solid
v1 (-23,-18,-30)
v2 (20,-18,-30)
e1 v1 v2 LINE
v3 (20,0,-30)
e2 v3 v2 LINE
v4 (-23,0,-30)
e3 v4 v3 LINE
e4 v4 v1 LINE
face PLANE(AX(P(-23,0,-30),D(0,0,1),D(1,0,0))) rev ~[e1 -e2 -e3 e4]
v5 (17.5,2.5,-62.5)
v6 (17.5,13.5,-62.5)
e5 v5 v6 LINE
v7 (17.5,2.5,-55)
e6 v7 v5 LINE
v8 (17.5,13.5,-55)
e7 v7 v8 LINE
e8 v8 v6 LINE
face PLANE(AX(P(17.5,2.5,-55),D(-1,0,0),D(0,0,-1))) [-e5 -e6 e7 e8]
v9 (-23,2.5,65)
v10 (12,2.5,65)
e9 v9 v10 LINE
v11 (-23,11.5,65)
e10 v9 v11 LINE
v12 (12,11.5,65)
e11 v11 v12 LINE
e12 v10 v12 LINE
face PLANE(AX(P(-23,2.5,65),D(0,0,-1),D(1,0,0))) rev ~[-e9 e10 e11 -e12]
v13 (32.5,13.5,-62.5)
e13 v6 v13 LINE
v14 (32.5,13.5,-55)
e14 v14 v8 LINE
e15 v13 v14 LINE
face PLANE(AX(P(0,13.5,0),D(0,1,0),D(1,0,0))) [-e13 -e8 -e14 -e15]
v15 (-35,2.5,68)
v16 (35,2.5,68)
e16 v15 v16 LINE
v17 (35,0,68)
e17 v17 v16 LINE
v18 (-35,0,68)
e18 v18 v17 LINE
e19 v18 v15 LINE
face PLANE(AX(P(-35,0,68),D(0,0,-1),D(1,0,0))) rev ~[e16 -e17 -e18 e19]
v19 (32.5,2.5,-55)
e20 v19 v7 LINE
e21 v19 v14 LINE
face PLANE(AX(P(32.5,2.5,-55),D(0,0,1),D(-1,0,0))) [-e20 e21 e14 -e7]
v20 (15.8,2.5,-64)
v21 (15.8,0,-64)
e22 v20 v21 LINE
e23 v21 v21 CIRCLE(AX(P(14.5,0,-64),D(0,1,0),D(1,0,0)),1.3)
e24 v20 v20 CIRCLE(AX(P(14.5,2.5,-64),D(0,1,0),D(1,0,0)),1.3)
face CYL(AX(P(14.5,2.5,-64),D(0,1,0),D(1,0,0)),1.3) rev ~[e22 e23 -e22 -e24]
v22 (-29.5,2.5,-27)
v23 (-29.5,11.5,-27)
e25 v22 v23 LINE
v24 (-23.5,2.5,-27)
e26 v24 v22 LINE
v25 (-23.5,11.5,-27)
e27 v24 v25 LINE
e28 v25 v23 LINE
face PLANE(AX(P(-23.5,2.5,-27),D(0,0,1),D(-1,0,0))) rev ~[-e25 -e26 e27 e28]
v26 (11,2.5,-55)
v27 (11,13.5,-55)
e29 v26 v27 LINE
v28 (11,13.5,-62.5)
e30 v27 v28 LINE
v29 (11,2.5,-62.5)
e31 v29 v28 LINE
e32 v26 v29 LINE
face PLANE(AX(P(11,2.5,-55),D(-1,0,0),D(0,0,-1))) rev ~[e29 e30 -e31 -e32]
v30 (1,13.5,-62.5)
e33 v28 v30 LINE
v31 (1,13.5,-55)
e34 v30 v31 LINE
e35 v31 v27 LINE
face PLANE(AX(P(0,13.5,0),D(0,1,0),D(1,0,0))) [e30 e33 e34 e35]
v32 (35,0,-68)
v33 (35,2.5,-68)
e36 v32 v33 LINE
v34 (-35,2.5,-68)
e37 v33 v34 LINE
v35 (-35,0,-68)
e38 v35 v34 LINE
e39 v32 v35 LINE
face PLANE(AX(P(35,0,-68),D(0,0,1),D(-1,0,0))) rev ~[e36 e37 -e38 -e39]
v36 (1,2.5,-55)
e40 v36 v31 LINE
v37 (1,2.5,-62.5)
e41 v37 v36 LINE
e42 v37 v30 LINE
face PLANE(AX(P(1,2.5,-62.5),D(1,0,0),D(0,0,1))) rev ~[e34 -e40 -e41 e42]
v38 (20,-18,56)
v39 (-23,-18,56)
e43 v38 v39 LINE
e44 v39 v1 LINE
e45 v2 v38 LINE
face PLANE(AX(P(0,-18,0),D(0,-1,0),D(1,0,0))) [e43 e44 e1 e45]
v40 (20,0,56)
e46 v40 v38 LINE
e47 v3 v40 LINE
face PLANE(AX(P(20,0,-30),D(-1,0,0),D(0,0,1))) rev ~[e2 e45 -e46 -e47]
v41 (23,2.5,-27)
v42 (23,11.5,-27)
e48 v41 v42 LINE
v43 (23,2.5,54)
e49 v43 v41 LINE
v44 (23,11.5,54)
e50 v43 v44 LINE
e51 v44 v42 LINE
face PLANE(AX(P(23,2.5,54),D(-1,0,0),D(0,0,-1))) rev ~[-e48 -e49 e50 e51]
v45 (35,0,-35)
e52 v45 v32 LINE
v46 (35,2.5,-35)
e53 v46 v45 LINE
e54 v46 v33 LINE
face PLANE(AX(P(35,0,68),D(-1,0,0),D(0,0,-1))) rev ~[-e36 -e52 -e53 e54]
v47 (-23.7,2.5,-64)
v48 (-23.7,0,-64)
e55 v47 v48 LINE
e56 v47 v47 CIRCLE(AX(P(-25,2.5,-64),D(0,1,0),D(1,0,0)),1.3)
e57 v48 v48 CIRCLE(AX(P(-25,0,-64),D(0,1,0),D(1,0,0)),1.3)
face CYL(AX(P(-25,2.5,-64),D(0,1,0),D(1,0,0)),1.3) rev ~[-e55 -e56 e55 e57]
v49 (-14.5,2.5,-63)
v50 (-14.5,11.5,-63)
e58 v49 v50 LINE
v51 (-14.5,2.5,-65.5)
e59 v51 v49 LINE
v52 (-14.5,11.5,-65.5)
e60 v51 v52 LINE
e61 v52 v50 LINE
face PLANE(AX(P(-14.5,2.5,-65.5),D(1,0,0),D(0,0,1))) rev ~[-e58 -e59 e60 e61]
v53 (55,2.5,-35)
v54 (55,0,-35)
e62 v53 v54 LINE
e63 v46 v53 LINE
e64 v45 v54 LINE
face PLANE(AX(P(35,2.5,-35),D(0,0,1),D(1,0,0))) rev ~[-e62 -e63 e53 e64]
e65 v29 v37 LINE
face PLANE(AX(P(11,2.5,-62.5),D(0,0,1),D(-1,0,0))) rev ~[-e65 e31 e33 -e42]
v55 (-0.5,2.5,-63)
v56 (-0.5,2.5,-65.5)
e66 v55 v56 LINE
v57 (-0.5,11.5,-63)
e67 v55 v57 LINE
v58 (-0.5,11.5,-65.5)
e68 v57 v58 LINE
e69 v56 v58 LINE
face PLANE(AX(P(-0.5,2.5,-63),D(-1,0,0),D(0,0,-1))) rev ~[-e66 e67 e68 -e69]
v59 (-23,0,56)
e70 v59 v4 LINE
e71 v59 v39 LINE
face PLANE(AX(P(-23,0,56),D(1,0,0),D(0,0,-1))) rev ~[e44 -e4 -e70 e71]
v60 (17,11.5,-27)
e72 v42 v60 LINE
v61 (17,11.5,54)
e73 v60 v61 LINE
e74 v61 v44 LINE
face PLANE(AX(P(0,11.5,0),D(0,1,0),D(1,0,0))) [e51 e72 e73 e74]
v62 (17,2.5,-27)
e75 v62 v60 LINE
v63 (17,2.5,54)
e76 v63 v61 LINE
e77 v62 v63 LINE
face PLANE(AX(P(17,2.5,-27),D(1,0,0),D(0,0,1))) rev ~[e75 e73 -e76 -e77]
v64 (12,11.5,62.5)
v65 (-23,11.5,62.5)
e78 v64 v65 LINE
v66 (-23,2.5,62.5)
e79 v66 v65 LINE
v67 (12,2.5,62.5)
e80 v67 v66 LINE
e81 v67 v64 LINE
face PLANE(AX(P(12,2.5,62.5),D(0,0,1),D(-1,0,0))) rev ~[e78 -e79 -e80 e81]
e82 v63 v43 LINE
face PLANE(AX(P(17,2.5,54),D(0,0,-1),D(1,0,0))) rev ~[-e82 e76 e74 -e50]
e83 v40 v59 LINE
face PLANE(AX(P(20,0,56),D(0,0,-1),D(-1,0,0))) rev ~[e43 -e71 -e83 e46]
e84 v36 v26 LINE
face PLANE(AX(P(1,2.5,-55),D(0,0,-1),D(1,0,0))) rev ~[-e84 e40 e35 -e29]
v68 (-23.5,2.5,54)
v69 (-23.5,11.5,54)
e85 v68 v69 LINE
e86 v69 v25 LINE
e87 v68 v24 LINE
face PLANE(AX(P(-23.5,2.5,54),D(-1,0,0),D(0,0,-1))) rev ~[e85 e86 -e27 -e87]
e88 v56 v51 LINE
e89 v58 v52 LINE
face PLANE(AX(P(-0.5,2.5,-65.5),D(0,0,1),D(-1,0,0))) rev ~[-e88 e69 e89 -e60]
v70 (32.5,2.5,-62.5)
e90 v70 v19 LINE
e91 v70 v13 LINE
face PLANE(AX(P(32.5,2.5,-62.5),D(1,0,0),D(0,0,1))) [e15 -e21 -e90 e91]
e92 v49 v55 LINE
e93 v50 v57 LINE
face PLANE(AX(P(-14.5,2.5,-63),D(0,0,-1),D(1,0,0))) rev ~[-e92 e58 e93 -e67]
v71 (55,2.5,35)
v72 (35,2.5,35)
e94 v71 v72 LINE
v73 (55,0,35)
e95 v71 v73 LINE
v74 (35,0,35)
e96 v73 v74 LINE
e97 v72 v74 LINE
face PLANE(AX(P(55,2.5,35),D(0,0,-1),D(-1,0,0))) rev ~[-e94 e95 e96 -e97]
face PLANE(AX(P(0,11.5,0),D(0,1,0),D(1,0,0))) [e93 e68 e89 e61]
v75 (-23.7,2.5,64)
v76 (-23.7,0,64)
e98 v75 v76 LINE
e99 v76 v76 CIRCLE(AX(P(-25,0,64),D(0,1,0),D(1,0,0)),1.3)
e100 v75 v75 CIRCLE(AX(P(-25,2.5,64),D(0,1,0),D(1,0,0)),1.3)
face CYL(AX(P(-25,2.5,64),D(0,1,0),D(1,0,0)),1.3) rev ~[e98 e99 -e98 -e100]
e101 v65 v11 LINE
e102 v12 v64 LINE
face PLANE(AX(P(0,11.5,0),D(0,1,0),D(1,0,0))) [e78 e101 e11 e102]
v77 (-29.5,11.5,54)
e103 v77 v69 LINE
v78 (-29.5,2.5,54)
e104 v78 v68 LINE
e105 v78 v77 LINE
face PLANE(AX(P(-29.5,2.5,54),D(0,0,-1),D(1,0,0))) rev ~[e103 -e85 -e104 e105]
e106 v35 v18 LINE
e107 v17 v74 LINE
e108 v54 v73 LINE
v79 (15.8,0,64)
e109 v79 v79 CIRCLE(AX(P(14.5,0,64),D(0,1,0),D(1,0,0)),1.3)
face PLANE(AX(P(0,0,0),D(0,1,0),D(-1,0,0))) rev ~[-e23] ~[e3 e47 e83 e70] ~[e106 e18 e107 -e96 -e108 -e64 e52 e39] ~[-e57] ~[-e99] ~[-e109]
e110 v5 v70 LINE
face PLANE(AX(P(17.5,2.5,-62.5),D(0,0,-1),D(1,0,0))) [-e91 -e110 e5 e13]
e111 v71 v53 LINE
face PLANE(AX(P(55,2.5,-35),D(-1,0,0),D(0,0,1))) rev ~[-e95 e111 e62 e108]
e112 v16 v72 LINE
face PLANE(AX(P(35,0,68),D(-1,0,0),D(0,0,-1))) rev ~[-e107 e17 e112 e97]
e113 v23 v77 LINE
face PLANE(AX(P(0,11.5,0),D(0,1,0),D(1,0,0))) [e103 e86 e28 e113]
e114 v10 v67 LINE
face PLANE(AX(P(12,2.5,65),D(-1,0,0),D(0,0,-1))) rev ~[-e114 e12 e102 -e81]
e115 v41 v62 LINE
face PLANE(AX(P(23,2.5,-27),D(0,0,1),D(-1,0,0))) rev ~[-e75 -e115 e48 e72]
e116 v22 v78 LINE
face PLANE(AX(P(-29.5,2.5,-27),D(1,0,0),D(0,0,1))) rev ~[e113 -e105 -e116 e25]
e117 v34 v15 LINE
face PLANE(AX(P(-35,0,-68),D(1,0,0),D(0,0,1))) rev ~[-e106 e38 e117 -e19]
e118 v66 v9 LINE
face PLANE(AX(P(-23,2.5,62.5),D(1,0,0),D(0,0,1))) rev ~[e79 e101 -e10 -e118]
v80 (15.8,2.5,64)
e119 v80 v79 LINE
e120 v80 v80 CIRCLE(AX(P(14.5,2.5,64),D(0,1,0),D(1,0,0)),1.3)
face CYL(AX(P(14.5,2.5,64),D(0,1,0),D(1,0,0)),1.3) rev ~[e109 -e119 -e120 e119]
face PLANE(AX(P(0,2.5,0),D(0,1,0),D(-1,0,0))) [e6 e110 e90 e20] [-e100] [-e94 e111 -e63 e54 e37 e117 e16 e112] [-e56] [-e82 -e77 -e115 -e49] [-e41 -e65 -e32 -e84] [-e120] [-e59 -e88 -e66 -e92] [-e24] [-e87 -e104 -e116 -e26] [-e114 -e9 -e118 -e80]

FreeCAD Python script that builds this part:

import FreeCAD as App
import Part
import Sketcher
Q = App.Units.Quantity

doc = App.newDocument("Part")
body = doc.addObject("PartDesign::Body", "Body")

# Sketch on XZ plane
sketch1 = body.newObject("Sketcher::SketchObject", "Sketch")
sketch1.AttachmentSupport = (doc.getObject("XZ_Plane"), [""])
sketch1.MapMode = "FlatFace"
sketch1.addGeometry([
    Part.LineSegment(App.Vector(35, 68, 0), App.Vector(35, -68, 0)),
    Part.LineSegment(App.Vector(35, -68, 0), App.Vector(-35, -68, 0)),
    Part.LineSegment(App.Vector(-35, -68, 0), App.Vector(-35, 68, 0)),
    Part.LineSegment(App.Vector(-35, 68, 0), App.Vector(35, 68, 0)),
], False)
sketch1.addConstraint([
    Sketcher.Constraint("Coincident", 0, 2, 1, 1),
    Sketcher.Constraint("Coincident", 1, 2, 2, 1),
    Sketcher.Constraint("Coincident", 2, 2, 3, 1),
    Sketcher.Constraint("Coincident", 3, 2, 0, 1),
    Sketcher.Constraint("Vertical", 0),
    Sketcher.Constraint("Horizontal", 1),
    Sketcher.Constraint("Vertical", 2),
    Sketcher.Constraint("Horizontal", 3),
    Sketcher.Constraint("Symmetric", 0, 2, 2, 2, -1, 1),
    Sketcher.Constraint("DistanceX", 1, 2, 1, 1, Q("70 mm")),
    Sketcher.Constraint("DistanceY", 0, 2, 0, 1, Q("136 mm")),
])
pad1 = body.newObject("PartDesign::Pad", "Pad")
pad1.Profile = sketch1
pad1.Length = 2.5
pad1.Reversed = True

# Sketch on XZ plane
sketch2 = body.newObject("Sketcher::SketchObject", "Sketch001")
sketch2.AttachmentSupport = (doc.getObject("XZ_Plane"), [""])
sketch2.MapMode = "FlatFace"
sketch2.AttachmentOffset = App.Placement(App.Vector(0, 0, -2.5), App.Rotation())
sketch2.addGeometry([
    Part.LineSegment(App.Vector(35, -35, 0), App.Vector(35, 35, 0)),
    Part.LineSegment(App.Vector(35, 35, 0), App.Vector(55, 35, 0)),
    Part.LineSegment(App.Vector(55, 35, 0), App.Vector(55, -35, 0)),
    Part.LineSegment(App.Vector(55, -35, 0), App.Vector(35, -35, 0)),
], False)
sketch2.addConstraint([
    Sketcher.Constraint("Coincident", 0, 2, 1, 1),
    Sketcher.Constraint("Coincident", 1, 2, 2, 1),
    Sketcher.Constraint("Coincident", 2, 2, 3, 1),
    Sketcher.Constraint("Coincident", 3, 2, 0, 1),
    Sketcher.Constraint("Vertical", 0),
    Sketcher.Constraint("Horizontal", 1),
    Sketcher.Constraint("Vertical", 2),
    Sketcher.Constraint("Horizontal", 3),
    Sketcher.Constraint("DistanceX", 1, 1, 1, 2, Q("20 mm")),
    Sketcher.Constraint("DistanceY", 0, 1, 0, 2, Q("70 mm")),
    Sketcher.Constraint("DistanceX", -1, 1, 0, 2, Q("35 mm")),
    Sketcher.Constraint("DistanceY", -1, 1, 0, 2, Q("35 mm")),
])
pad2 = body.newObject("PartDesign::Pad", "Pad001")
pad2.Profile = sketch2
pad2.Length = 2.5

# Sketch on XZ plane
sketch3 = body.newObject("Sketcher::SketchObject", "Sketch002")
sketch3.AttachmentSupport = (doc.getObject("XZ_Plane"), [""])
sketch3.MapMode = "FlatFace"
sketch3.AttachmentOffset = App.Placement(App.Vector(0, 0, -2.5), App.Rotation())
sketch3.addGeometry([
    Part.Circle(App.Vector(-25, -64, 0), App.Vector(0, 0, 1), 1.3),
    Part.Circle(App.Vector(14.5, -64, 0), App.Vector(0, 0, 1), 1.3),
    Part.Circle(App.Vector(-25, 64, 0), App.Vector(0, 0, 1), 1.3),
    Part.Circle(App.Vector(14.5, 64, 0), App.Vector(0, 0, 1), 1.3),
], False)
sketch3.addConstraint([
    Sketcher.Constraint("Equal", 0, 1),
    Sketcher.Constraint("Equal", 1, 2),
    Sketcher.Constraint("Equal", 2, 3),
    Sketcher.Constraint("Symmetric", 0, 3, 2, 3, -1),
    Sketcher.Constraint("Symmetric", 1, 3, 3, 3, -1),
    Sketcher.Constraint("Horizontal", 0, 3, 1, 3),
    Sketcher.Constraint("Diameter", 0, Q("2.6 mm")),
    Sketcher.Constraint("DistanceY", 0, 3, 2, 3, Q("128 mm")),
    Sketcher.Constraint("DistanceX", 0, 3, 1, 3, Q("39.5 mm")),
    Sketcher.Constraint("DistanceX", 0, 3, -1, 1, Q("25 mm")),
])
pocket1 = body.newObject("PartDesign::Pocket", "Pocket")
pocket1.Profile = sketch3
pocket1.Type = "UpToFirst"
pocket1.Reversed = True

# Sketch on XZ plane
sketch4 = body.newObject("Sketcher::SketchObject", "Sketch003")
sketch4.AttachmentSupport = (doc.getObject("XZ_Plane"), [""])
sketch4.MapMode = "FlatFace"
sketch4.AttachmentOffset = App.Placement(App.Vector(0, 0, -2.5), App.Rotation())
sketch4.addGeometry([
    Part.LineSegment(App.Vector(-23, 62.5, 0), App.Vector(-23, 65, 0)),
    Part.LineSegment(App.Vector(-23, 65, 0), App.Vector(12, 65, 0)),
    Part.LineSegment(App.Vector(12, 65, 0), App.Vector(12, 62.5, 0)),
    Part.LineSegment(App.Vector(12, 62.5, 0), App.Vector(-23, 62.5, 0)),
], False)
sketch4.addConstraint([
    Sketcher.Constraint("Coincident", 0, 2, 1, 1),
    Sketcher.Constraint("Coincident", 1, 2, 2, 1),
    Sketcher.Constraint("Coincident", 2, 2, 3, 1),
    Sketcher.Constraint("Coincident", 3, 2, 0, 1),
    Sketcher.Constraint("Vertical", 0),
    Sketcher.Constraint("Horizontal", 1),
    Sketcher.Constraint("Vertical", 2),
    Sketcher.Constraint("Horizontal", 3),
    Sketcher.Constraint("DistanceX", 1, 1, 1, 2, Q("35 mm")),
    Sketcher.Constraint("DistanceY", 0, 1, 0, 2, Q("2.5 mm")),
    Sketcher.Constraint("DistanceX", -1, 1, 1, 2, Q("12 mm")),
    Sketcher.Constraint("DistanceY", -1, 1, 0, 2, Q("65 mm")),
])
pad3 = body.newObject("PartDesign::Pad", "Pad002")
pad3.Profile = sketch4
pad3.Length = 9
pad3.Reversed = True

# Sketch on XZ plane
sketch5 = body.newObject("Sketcher::SketchObject", "Sketch004")
sketch5.AttachmentSupport = (doc.getObject("XZ_Plane"), [""])
sketch5.MapMode = "FlatFace"
sketch5.AttachmentOffset = App.Placement(App.Vector(0, 0, -2.5), App.Rotation())
sketch5.addGeometry([
    Part.LineSegment(App.Vector(-30, -27, 0), App.Vector(-30, 54, 0)),  # 0
    Part.LineSegment(App.Vector(-30, 54, 0), App.Vector(-24, 54, 0)),  # 1
    Part.LineSegment(App.Vector(-24, 54, 0), App.Vector(-24, -27, 0)),  # 2
    Part.LineSegment(App.Vector(-24, -27, 0), App.Vector(-30, -27, 0)),  # 3
    Part.LineSegment(App.Vector(17, -27, 0), App.Vector(17, 54, 0)),  # 4
    Part.LineSegment(App.Vector(17, 54, 0), App.Vector(23, 54, 0)),  # 5
    Part.LineSegment(App.Vector(23, 54, 0), App.Vector(23, -27, 0)),  # 6
    Part.LineSegment(App.Vector(23, -27, 0), App.Vector(17, -27, 0)),  # 7
], False)
sketch5.addConstraint([
    Sketcher.Constraint("Coincident", 0, 2, 1, 1),
    Sketcher.Constraint("Coincident", 1, 2, 2, 1),
    Sketcher.Constraint("Coincident", 2, 2, 3, 1),
    Sketcher.Constraint("Coincident", 3, 2, 0, 1),
    Sketcher.Constraint("Coincident", 4, 2, 5, 1),
    Sketcher.Constraint("Coincident", 5, 2, 6, 1),
    Sketcher.Constraint("Coincident", 6, 2, 7, 1),
    Sketcher.Constraint("Coincident", 7, 2, 4, 1),
    Sketcher.Constraint("Vertical", 0),
    Sketcher.Constraint("Horizontal", 1),
    Sketcher.Constraint("Vertical", 2),
    Sketcher.Constraint("Horizontal", 3),
    Sketcher.Constraint("Vertical", 4),
    Sketcher.Constraint("Horizontal", 5),
    Sketcher.Constraint("Vertical", 6),
    Sketcher.Constraint("Horizontal", 7),
    Sketcher.Constraint("Horizontal", 1, 2, 4, 2),
    Sketcher.Constraint("Horizontal", 3, 2, 6, 2),
    Sketcher.Constraint("Equal", 3, 5),
    Sketcher.Constraint("DistanceX", 1, 1, 1, 2, Q("6 mm")),
    Sketcher.Constraint("DistanceY", 0, 1, 0, 2, Q("81 mm")),
    Sketcher.Constraint("DistanceY", -1, 1, 0, 2, Q("54 mm")),
    Sketcher.Constraint("DistanceX", -1, 1, 4, 2, Q("17 mm")),
    Sketcher.Constraint("DistanceX", 0, 2, -1, 1, Q("29.5 mm")),
])
pad4 = body.newObject("PartDesign::Pad", "Pad003")
pad4.Profile = sketch5
pad4.Length = 9
pad4.Reversed = True

# Sketch on XZ plane
sketch6 = body.newObject("Sketcher::SketchObject", "Sketch005")
sketch6.AttachmentSupport = (doc.getObject("XZ_Plane"), [""])
sketch6.MapMode = "FlatFace"
sketch6.AttachmentOffset = App.Placement(App.Vector(0, 0, -2.5), App.Rotation())
sketch6.addGeometry([
    Part.LineSegment(App.Vector(18, -55, 0), App.Vector(32, -55, 0)),  # 0
    Part.LineSegment(App.Vector(32, -55, 0), App.Vector(32, -62, 0)),  # 1
    Part.LineSegment(App.Vector(32, -62, 0), App.Vector(18, -62, 0)),  # 2
    Part.LineSegment(App.Vector(18, -62, 0), App.Vector(18, -55, 0)),  # 3
    Part.LineSegment(App.Vector(11, -55, 0), App.Vector(11, -62, 0)),  # 4
    Part.LineSegment(App.Vector(11, -62, 0), App.Vector(1, -62, 0)),  # 5
    Part.LineSegment(App.Vector(1, -62, 0), App.Vector(1, -55, 0)),  # 6
    Part.LineSegment(App.Vector(1, -55, 0), App.Vector(11, -55, 0)),  # 7
], False)
sketch6.addConstraint([
    Sketcher.Constraint("Coincident", 0, 2, 1, 1),
    Sketcher.Constraint("Coincident", 1, 2, 2, 1),
    Sketcher.Constraint("Coincident", 2, 2, 3, 1),
    Sketcher.Constraint("Coincident", 3, 2, 0, 1),
    Sketcher.Constraint("Coincident", 4, 2, 5, 1),
    Sketcher.Constraint("Coincident", 5, 2, 6, 1),
    Sketcher.Constraint("Coincident", 6, 2, 7, 1),
    Sketcher.Constraint("Coincident", 7, 2, 4, 1),
    Sketcher.Constraint("Horizontal", 0),
    Sketcher.Constraint("Vertical", 1),
    Sketcher.Constraint("Horizontal", 2),
    Sketcher.Constraint("Vertical", 3),
    Sketcher.Constraint("Vertical", 4),
    Sketcher.Constraint("Horizontal", 5),
    Sketcher.Constraint("Vertical", 6),
    Sketcher.Constraint("Horizontal", 7),
    Sketcher.Constraint("Horizontal", 2, 2, 4, 2),
    Sketcher.Constraint("Horizontal", 3, 2, 6, 2),
    Sketcher.Constraint("DistanceX", 0, 1, 0, 2, Q("15 mm")),
    Sketcher.Constraint("DistanceX", 5, 2, 5, 1, Q("10 mm")),
    Sketcher.Constraint("DistanceY", 1, 2, 1, 1, Q("7.5 mm")),
    Sketcher.Constraint("DistanceX", 4, 2, 2, 2, Q("6.5 mm")),
    Sketcher.Constraint("DistanceY", 0, 2, -1, 1, Q("55 mm")),
    Sketcher.Constraint("DistanceX", -1, 1, 4, 2, Q("11 mm")),
])
pad5 = body.newObject("PartDesign::Pad", "Pad004")
pad5.Profile = sketch6
pad5.Length = 11
pad5.Reversed = True

# Sketch on XZ plane
sketch7 = body.newObject("Sketcher::SketchObject", "Sketch006")
sketch7.AttachmentSupport = (doc.getObject("XZ_Plane"), [""])
sketch7.MapMode = "FlatFace"
sketch7.AttachmentOffset = App.Placement(App.Vector(0, 0, -2.5), App.Rotation())
sketch7.addGeometry([
    Part.LineSegment(App.Vector(-0.5, -63, 0), App.Vector(-0.5, -65.5, 0)),
    Part.LineSegment(App.Vector(-0.5, -65.5, 0), App.Vector(-14.5, -65.5, 0)),
    Part.LineSegment(App.Vector(-14.5, -65.5, 0), App.Vector(-14.5, -63, 0)),
    Part.LineSegment(App.Vector(-14.5, -63, 0), App.Vector(-0.5, -63, 0)),
], False)
sketch7.addConstraint([
    Sketcher.Constraint("Coincident", 0, 2, 1, 1),
    Sketcher.Constraint("Coincident", 1, 2, 2, 1),
    Sketcher.Constraint("Coincident", 2, 2, 3, 1),
    Sketcher.Constraint("Coincident", 3, 2, 0, 1),
    Sketcher.Constraint("Vertical", 0),
    Sketcher.Constraint("Horizontal", 1),
    Sketcher.Constraint("Vertical", 2),
    Sketcher.Constraint("Horizontal", 3),
    Sketcher.Constraint("DistanceX", 1, 2, 1, 1, Q("14 mm")),
    Sketcher.Constraint("DistanceY", 0, 2, 0, 1, Q("2.5 mm")),
    Sketcher.Constraint("DistanceY", 2, 2, -1, 1, Q("63 mm")),
    Sketcher.Constraint("DistanceX", 0, 2, -1, 1, Q("0.5 mm")),
])
pad6 = body.newObject("PartDesign::Pad", "Pad005")
pad6.Profile = sketch7
pad6.Length = 9
pad6.Reversed = True

# Sketch on XZ plane
sketch8 = body.newObject("Sketcher::SketchObject", "Sketch007")
sketch8.AttachmentSupport = (doc.getObject("XZ_Plane"), [""])
sketch8.MapMode = "FlatFace"
sketch8.addGeometry([
    Part.LineSegment(App.Vector(20, -30, 0), App.Vector(20, 56, 0)),
    Part.LineSegment(App.Vector(20, 56, 0), App.Vector(-23, 56, 0)),
    Part.LineSegment(App.Vector(-23, 56, 0), App.Vector(-23, -30, 0)),
    Part.LineSegment(App.Vector(-23, -30, 0), App.Vector(20, -30, 0)),
], False)
sketch8.addConstraint([
    Sketcher.Constraint("Coincident", 0, 2, 1, 1),
    Sketcher.Constraint("Coincident", 1, 2, 2, 1),
    Sketcher.Constraint("Coincident", 2, 2, 3, 1),
    Sketcher.Constraint("Coincident", 3, 2, 0, 1),
    Sketcher.Constraint("Vertical", 0),
    Sketcher.Constraint("Horizontal", 1),
    Sketcher.Constraint("Vertical", 2),
    Sketcher.Constraint("Horizontal", 3),
    Sketcher.Constraint("DistanceX", 1, 2, 1, 1, Q("43 mm")),
    Sketcher.Constraint("DistanceY", 0, 1, 0, 2, Q("86 mm")),
    Sketcher.Constraint("DistanceX", -1, 1, 0, 2, Q("20 mm")),
    Sketcher.Constraint("DistanceY", -1, 1, 0, 2, Q("56 mm")),
])
pad7 = body.newObject("PartDesign::Pad", "Pad006")
pad7.Profile = sketch8
pad7.Length = 18

doc.recompute()
